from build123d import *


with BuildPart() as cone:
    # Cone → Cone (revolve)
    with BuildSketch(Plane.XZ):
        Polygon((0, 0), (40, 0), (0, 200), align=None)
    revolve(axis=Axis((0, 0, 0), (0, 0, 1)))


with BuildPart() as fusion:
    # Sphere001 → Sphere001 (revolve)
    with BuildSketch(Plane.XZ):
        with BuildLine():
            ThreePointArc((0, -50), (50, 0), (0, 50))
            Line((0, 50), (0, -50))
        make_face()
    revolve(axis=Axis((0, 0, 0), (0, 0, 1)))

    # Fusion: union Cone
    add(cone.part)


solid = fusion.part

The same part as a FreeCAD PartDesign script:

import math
import FreeCAD as App
import Part
import Sketcher
from FreeCAD import Vector
Q = App.Units.Quantity


def add_polygon(sketch, points):
    """Adds a closed chain of lines whose ends are joined by coincident constraints."""
    first, n = sketch.GeometryCount, len(points)
    for a, b in zip(points, points[1:] + points[:1]):
        sketch.addGeometry(Part.LineSegment(App.Vector(*a, 0), App.Vector(*b, 0)), False)
    for i in range(n):
        sketch.addConstraint(Sketcher.Constraint("Coincident", first + i, 2, first + (i + 1) % n, 1))

doc = App.newDocument("Part")
params = doc.addObject("Spreadsheet::Sheet", "Params")
for row, (alias, value) in enumerate([
    ("sketch1_width", "40 mm"),
    ("sketch1_height", "200 mm"),
    ("revolution_angle", "360 deg"),
    ("sketch2_radius", "50 mm"),
    ("revolution2_angle", "360 deg"),
], start=1):
    params.set(f"A{row}", alias)
    params.set(f"B{row}", "=" + value)
    params.setAlias(f"B{row}", alias)

body = doc.addObject("PartDesign::Body", "Body")

# Sketch on XZ plane
sketch1 = doc.addObject("Sketcher::SketchObject", "Sketch")
body.addObject(sketch1)
sketch1.AttachmentSupport = (doc.XZ_Plane, [""])
sketch1.MapMode = "FlatFace"
add_polygon(sketch1, [(0, 0), (40, 0), (0, 200)])  # lines 0-2
sketch1.addConstraint([
    Sketcher.Constraint("Horizontal", 0),
    Sketcher.Constraint("Vertical", 2),
    Sketcher.Constraint("Coincident", 2, 2, -1, 1),
    Sketcher.Constraint("DistanceX", 0, 1, 0, 2, Q("40 mm")),
    Sketcher.Constraint("DistanceY", 2, 2, 2, 1, Q("200 mm")),
])
sketch1.setExpression("Constraints[6]", "Params.sketch1_width")
sketch1.setExpression("Constraints[7]", "Params.sketch1_height")
revolution = doc.addObject("PartDesign::Revolution", "Revolution")
body.addObject(revolution)
revolution.Profile = sketch1
revolution.ReferenceAxis = (sketch1, ["V_Axis"])
revolution.setExpression("Angle", "Params.revolution_angle")
body2 = doc.addObject("PartDesign::Body", "Body001")

# Sketch on XZ plane
sketch2 = doc.addObject("Sketcher::SketchObject", "Sketch001")
body2.addObject(sketch2)
sketch2.AttachmentSupport = (doc.getObject("XZ_Plane001"), [""])
sketch2.MapMode = "FlatFace"
sketch2.addGeometry([
    Part.ArcOfCircle(Part.Circle(Vector(0, 0, 0), Vector(0, 0, 1), 50), math.radians(-90), math.radians(90)),
    Part.LineSegment(Vector(0, 50, 0), Vector(0, -50, 0)),
], False)
sketch2.addConstraint([
    Sketcher.Constraint("Coincident", 0, 1, 1, 2),
    Sketcher.Constraint("Coincident", 1, 1, 0, 2),
    Sketcher.Constraint("Vertical", 1),
    Sketcher.Constraint("Coincident", 0, 3, -1, 1),
    Sketcher.Constraint("PointOnObject", 0, 1, -2),
    Sketcher.Constraint("Radius", 0, Q("50 mm")),
])
sketch2.setExpression("Constraints[5]", "Params.sketch2_radius")
revolution2 = doc.addObject("PartDesign::Revolution", "Revolution001")
body2.addObject(revolution2)
revolution2.Profile = sketch2
revolution2.ReferenceAxis = (sketch2, ["V_Axis"])
revolution2.setExpression("Angle", "Params.revolution2_angle")
doc.recompute()

boolean = doc.addObject("PartDesign::Boolean", "Boolean")
body2.addObject(boolean)
boolean.Type = "Fuse"
boolean.addObjects([body])

doc.recompute()
